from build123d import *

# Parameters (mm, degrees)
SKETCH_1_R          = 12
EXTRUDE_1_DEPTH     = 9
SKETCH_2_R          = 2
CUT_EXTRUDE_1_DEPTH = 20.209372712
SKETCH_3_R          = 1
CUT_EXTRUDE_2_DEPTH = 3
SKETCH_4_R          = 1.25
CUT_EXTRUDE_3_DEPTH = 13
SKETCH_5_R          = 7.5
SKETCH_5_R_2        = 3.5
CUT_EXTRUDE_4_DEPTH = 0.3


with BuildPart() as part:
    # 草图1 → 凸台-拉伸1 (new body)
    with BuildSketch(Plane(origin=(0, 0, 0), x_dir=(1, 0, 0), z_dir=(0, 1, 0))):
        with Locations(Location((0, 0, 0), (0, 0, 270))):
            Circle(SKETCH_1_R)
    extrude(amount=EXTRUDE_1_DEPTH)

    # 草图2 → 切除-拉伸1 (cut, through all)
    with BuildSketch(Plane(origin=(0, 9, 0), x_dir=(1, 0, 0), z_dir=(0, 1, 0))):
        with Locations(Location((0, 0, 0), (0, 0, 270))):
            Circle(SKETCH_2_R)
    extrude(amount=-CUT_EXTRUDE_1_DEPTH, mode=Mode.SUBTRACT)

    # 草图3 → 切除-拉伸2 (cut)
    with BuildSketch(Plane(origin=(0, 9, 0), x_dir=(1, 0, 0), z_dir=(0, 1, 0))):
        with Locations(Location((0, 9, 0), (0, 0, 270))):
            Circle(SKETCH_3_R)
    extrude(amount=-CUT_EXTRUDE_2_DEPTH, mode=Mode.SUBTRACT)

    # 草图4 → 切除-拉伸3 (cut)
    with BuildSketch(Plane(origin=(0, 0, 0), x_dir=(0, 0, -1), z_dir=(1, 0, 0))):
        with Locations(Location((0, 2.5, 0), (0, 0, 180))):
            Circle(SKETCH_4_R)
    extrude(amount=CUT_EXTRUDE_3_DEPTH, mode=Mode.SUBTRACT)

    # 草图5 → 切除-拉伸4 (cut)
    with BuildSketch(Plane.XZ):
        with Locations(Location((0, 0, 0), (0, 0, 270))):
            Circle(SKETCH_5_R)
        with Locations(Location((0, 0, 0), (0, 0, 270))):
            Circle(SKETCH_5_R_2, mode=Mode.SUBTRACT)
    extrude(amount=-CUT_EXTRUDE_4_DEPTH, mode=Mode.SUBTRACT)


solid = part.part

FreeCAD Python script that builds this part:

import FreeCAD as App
import Part
import Sketcher

V = App.Vector
Q = App.Units.Quantity

doc = App.newDocument("Part")
params = doc.addObject("Spreadsheet::Sheet", "Params")
for row, (alias, value) in enumerate([
    ("sketch1_diameter", "24 mm"),
    ("pad1_length", "9 mm"),
    ("sketch2_diameter", "4 mm"),
    ("sketch3_diameter", "2 mm"),
    ("pocket2_length", "3 mm"),
    ("sketch4_diameter", "2.5 mm"),
    ("pocket3_length", "13 mm"),
    ("sketch5_diameter", "15 mm"),
    ("sketch5_diameter2", "7 mm"),
    ("pocket4_length", "0.3 mm"),
], start=1):
    params.set(f"A{row}", alias)
    params.set(f"B{row}", "=" + value)
    params.setAlias(f"B{row}", alias)

body = doc.addObject("PartDesign::Body", "Body")

sketch1 = body.newObject("Sketcher::SketchObject", "Sketch")
sketch1.AttachmentSupport = (doc.getObject("XZ_Plane"), [""])
sketch1.MapMode = "FlatFace"
sketch1.addGeometry(Part.Circle(V(0, 0, 0), V(0, 0, 1), 12), False)
sketch1.addConstraint([
    Sketcher.Constraint("Coincident", 0, 3, -1, 1),
    Sketcher.Constraint("Diameter", 0, Q("24 mm")),
])
sketch1.setExpression("Constraints[1]", "Params.sketch1_diameter")
pad1 = body.newObject("PartDesign::Pad", "Pad")
pad1.Profile = sketch1
pad1.setExpression("Length", "Params.pad1_length")
pad1.Reversed = True

sketch2 = body.newObject("Sketcher::SketchObject", "Sketch001")
sketch2.AttachmentSupport = (doc.getObject("XZ_Plane"), [""])
sketch2.MapMode = "FlatFace"
sketch2.AttachmentOffset = App.Placement(V(0, 0, -9), App.Rotation())
sketch2.addGeometry(Part.Circle(V(0, 0, 0), V(0, 0, 1), 2), False)
sketch2.addConstraint([
    Sketcher.Constraint("Coincident", 0, 3, -1, 1),
    Sketcher.Constraint("Diameter", 0, Q("4 mm")),
])
sketch2.setExpression("Constraints[1]", "Params.sketch2_diameter")
pocket1 = body.newObject("PartDesign::Pocket", "Pocket")
pocket1.Profile = sketch2
pocket1.Type = "ThroughAll"
pocket1.Reversed = True

sketch3 = body.newObject("Sketcher::SketchObject", "Sketch002")
sketch3.AttachmentSupport = (doc.getObject("XZ_Plane"), [""])
sketch3.MapMode = "FlatFace"
sketch3.AttachmentOffset = App.Placement(V(0, 0, -9), App.Rotation())
sketch3.addGeometry(Part.Circle(V(0, -9, 0), V(0, 0, 1), 1), False)
sketch3.addConstraint([
    Sketcher.Constraint("PointOnObject", 0, 3, -2),
    Sketcher.Constraint("Diameter", 0, Q("2 mm")),
    Sketcher.Constraint("DistanceY", 0, 3, -1, 1, Q("9 mm")),
])
sketch3.setExpression("Constraints[1]", "Params.sketch3_diameter")
pocket2 = body.newObject("PartDesign::Pocket", "Pocket001")
pocket2.Profile = sketch3
pocket2.setExpression("Length", "Params.pocket2_length")
pocket2.Reversed = True

sketch4 = body.newObject("Sketcher::SketchObject", "Sketch003")
sketch4.AttachmentSupport = (doc.getObject("YZ_Plane"), [""])
sketch4.MapMode = "FlatFace"
sketch4.addGeometry(Part.Circle(V(2.5, 0, 0), V(0, 0, 1), 1.25), False)
sketch4.addConstraint([
    Sketcher.Constraint("PointOnObject", 0, 3, -1),
    Sketcher.Constraint("Diameter", 0, Q("2.5 mm")),
    Sketcher.Constraint("DistanceX", -1, 1, 0, 3, Q("2.5 mm")),
])
sketch4.setExpression("Constraints[1]", "Params.sketch4_diameter")
pocket3 = body.newObject("PartDesign::Pocket", "Pocket002")
pocket3.Profile = sketch4
pocket3.setExpression("Length", "Params.pocket3_length")
pocket3.Reversed = True

sketch5 = body.newObject("Sketcher::SketchObject", "Sketch004")
sketch5.AttachmentSupport = (doc.getObject("XZ_Plane"), [""])
sketch5.MapMode = "FlatFace"
sketch5.addGeometry([
    Part.Circle(V(0, 0, 0), V(0, 0, 1), 7.5),
    Part.Circle(V(0, 0, 0), V(0, 0, 1), 3.5),
], False)
sketch5.addConstraint([
    Sketcher.Constraint("Coincident", 0, 3, -1, 1),
    Sketcher.Constraint("Coincident", 1, 3, -1, 1),
    Sketcher.Constraint("Diameter", 0, Q("15 mm")),
    Sketcher.Constraint("Diameter", 1, Q("7 mm")),
])
sketch5.setExpression("Constraints[2]", "Params.sketch5_diameter")
sketch5.setExpression("Constraints[3]", "Params.sketch5_diameter2")
pocket4 = body.newObject("PartDesign::Pocket", "Pocket003")
pocket4.Profile = sketch5
pocket4.setExpression("Length", "Params.pocket4_length")

doc.recompute()
